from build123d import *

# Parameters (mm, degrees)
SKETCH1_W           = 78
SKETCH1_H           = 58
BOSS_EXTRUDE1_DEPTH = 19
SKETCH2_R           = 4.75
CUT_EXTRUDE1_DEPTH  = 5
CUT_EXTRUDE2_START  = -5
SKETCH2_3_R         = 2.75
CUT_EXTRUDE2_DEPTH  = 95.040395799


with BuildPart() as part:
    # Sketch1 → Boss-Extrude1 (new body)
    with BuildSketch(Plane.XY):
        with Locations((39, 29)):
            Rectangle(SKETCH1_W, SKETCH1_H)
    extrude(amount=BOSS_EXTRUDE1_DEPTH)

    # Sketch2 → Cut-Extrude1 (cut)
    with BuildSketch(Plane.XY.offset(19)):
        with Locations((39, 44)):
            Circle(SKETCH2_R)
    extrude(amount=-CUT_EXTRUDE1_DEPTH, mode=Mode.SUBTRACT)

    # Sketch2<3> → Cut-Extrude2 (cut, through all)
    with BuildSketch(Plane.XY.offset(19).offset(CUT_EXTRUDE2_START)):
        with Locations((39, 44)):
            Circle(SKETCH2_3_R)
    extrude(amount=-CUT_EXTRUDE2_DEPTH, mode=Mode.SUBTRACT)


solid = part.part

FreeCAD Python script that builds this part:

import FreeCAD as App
import Part
import Sketcher
Q = App.Units.Quantity


def add_polygon(sketch, points):
    """Adds a closed chain of lines whose ends are joined by coincident constraints."""
    first, n = sketch.GeometryCount, len(points)
    for a, b in zip(points, points[1:] + points[:1]):
        sketch.addGeometry(Part.LineSegment(App.Vector(*a, 0), App.Vector(*b, 0)), False)
    for i in range(n):
        sketch.addConstraint(Sketcher.Constraint("Coincident", first + i, 2, first + (i + 1) % n, 1))

doc = App.newDocument("Part")
body = doc.addObject("PartDesign::Body", "Body")

# Sketch on XY plane
sketch1 = body.newObject("Sketcher::SketchObject", "Sketch")
sketch1.AttachmentSupport = (doc.getObject("XY_Plane"), [""])
sketch1.MapMode = "FlatFace"
add_polygon(sketch1, [(0, 58), (0, 0), (78, 0), (78, 58)])  # lines 0-3
sketch1.addConstraint([
    Sketcher.Constraint("Vertical", 0),
    Sketcher.Constraint("Horizontal", 1),
    Sketcher.Constraint("Vertical", 2),
    Sketcher.Constraint("Horizontal", 3),
    Sketcher.Constraint("Coincident", 0, 2, -1, 1),
    Sketcher.Constraint("DistanceX", 1, 1, 1, 2, Q("78 mm")),
    Sketcher.Constraint("DistanceY", 0, 2, 0, 1, Q("58 mm")),
])
pad1 = body.newObject("PartDesign::Pad", "Pad")
pad1.Profile = sketch1
pad1.Length = 19

# Sketch on XY plane
sketch2 = body.newObject("Sketcher::SketchObject", "Sketch001")
sketch2.AttachmentSupport = (doc.getObject("XY_Plane"), [""])
sketch2.MapMode = "FlatFace"
sketch2.AttachmentOffset = App.Placement(App.Vector(0, 0, 19), App.Rotation())
sketch2.addGeometry(Part.Circle(App.Vector(39, 44, 0), App.Vector(0, 0, 1), 4.8), False)
sketch2.addConstraint([
    Sketcher.Constraint("Diameter", 0, Q("9.5 mm")),
    Sketcher.Constraint("DistanceX", -1, 1, 0, 3, Q("39 mm")),
    Sketcher.Constraint("DistanceY", -1, 1, 0, 3, Q("44 mm")),
])
pocket1 = body.newObject("PartDesign::Pocket", "Pocket")
pocket1.Profile = sketch2
pocket1.Length = 5

# Sketch on XY plane
sketch3 = body.newObject("Sketcher::SketchObject", "Sketch002")
sketch3.AttachmentSupport = (doc.getObject("XY_Plane"), [""])
sketch3.MapMode = "FlatFace"
sketch3.AttachmentOffset = App.Placement(App.Vector(0, 0, 14), App.Rotation())
sketch3.addGeometry(Part.Circle(App.Vector(39, 44, 0), App.Vector(0, 0, 1), 2.8), False)
sketch3.addConstraint([
    Sketcher.Constraint("Diameter", 0, Q("5.5 mm")),
    Sketcher.Constraint("DistanceX", -1, 1, 0, 3, Q("39 mm")),
    Sketcher.Constraint("DistanceY", -1, 1, 0, 3, Q("44 mm")),
])
pocket2 = body.newObject("PartDesign::Pocket", "Pocket001")
pocket2.Profile = sketch3
pocket2.Type = "ThroughAll"

doc.recompute()
